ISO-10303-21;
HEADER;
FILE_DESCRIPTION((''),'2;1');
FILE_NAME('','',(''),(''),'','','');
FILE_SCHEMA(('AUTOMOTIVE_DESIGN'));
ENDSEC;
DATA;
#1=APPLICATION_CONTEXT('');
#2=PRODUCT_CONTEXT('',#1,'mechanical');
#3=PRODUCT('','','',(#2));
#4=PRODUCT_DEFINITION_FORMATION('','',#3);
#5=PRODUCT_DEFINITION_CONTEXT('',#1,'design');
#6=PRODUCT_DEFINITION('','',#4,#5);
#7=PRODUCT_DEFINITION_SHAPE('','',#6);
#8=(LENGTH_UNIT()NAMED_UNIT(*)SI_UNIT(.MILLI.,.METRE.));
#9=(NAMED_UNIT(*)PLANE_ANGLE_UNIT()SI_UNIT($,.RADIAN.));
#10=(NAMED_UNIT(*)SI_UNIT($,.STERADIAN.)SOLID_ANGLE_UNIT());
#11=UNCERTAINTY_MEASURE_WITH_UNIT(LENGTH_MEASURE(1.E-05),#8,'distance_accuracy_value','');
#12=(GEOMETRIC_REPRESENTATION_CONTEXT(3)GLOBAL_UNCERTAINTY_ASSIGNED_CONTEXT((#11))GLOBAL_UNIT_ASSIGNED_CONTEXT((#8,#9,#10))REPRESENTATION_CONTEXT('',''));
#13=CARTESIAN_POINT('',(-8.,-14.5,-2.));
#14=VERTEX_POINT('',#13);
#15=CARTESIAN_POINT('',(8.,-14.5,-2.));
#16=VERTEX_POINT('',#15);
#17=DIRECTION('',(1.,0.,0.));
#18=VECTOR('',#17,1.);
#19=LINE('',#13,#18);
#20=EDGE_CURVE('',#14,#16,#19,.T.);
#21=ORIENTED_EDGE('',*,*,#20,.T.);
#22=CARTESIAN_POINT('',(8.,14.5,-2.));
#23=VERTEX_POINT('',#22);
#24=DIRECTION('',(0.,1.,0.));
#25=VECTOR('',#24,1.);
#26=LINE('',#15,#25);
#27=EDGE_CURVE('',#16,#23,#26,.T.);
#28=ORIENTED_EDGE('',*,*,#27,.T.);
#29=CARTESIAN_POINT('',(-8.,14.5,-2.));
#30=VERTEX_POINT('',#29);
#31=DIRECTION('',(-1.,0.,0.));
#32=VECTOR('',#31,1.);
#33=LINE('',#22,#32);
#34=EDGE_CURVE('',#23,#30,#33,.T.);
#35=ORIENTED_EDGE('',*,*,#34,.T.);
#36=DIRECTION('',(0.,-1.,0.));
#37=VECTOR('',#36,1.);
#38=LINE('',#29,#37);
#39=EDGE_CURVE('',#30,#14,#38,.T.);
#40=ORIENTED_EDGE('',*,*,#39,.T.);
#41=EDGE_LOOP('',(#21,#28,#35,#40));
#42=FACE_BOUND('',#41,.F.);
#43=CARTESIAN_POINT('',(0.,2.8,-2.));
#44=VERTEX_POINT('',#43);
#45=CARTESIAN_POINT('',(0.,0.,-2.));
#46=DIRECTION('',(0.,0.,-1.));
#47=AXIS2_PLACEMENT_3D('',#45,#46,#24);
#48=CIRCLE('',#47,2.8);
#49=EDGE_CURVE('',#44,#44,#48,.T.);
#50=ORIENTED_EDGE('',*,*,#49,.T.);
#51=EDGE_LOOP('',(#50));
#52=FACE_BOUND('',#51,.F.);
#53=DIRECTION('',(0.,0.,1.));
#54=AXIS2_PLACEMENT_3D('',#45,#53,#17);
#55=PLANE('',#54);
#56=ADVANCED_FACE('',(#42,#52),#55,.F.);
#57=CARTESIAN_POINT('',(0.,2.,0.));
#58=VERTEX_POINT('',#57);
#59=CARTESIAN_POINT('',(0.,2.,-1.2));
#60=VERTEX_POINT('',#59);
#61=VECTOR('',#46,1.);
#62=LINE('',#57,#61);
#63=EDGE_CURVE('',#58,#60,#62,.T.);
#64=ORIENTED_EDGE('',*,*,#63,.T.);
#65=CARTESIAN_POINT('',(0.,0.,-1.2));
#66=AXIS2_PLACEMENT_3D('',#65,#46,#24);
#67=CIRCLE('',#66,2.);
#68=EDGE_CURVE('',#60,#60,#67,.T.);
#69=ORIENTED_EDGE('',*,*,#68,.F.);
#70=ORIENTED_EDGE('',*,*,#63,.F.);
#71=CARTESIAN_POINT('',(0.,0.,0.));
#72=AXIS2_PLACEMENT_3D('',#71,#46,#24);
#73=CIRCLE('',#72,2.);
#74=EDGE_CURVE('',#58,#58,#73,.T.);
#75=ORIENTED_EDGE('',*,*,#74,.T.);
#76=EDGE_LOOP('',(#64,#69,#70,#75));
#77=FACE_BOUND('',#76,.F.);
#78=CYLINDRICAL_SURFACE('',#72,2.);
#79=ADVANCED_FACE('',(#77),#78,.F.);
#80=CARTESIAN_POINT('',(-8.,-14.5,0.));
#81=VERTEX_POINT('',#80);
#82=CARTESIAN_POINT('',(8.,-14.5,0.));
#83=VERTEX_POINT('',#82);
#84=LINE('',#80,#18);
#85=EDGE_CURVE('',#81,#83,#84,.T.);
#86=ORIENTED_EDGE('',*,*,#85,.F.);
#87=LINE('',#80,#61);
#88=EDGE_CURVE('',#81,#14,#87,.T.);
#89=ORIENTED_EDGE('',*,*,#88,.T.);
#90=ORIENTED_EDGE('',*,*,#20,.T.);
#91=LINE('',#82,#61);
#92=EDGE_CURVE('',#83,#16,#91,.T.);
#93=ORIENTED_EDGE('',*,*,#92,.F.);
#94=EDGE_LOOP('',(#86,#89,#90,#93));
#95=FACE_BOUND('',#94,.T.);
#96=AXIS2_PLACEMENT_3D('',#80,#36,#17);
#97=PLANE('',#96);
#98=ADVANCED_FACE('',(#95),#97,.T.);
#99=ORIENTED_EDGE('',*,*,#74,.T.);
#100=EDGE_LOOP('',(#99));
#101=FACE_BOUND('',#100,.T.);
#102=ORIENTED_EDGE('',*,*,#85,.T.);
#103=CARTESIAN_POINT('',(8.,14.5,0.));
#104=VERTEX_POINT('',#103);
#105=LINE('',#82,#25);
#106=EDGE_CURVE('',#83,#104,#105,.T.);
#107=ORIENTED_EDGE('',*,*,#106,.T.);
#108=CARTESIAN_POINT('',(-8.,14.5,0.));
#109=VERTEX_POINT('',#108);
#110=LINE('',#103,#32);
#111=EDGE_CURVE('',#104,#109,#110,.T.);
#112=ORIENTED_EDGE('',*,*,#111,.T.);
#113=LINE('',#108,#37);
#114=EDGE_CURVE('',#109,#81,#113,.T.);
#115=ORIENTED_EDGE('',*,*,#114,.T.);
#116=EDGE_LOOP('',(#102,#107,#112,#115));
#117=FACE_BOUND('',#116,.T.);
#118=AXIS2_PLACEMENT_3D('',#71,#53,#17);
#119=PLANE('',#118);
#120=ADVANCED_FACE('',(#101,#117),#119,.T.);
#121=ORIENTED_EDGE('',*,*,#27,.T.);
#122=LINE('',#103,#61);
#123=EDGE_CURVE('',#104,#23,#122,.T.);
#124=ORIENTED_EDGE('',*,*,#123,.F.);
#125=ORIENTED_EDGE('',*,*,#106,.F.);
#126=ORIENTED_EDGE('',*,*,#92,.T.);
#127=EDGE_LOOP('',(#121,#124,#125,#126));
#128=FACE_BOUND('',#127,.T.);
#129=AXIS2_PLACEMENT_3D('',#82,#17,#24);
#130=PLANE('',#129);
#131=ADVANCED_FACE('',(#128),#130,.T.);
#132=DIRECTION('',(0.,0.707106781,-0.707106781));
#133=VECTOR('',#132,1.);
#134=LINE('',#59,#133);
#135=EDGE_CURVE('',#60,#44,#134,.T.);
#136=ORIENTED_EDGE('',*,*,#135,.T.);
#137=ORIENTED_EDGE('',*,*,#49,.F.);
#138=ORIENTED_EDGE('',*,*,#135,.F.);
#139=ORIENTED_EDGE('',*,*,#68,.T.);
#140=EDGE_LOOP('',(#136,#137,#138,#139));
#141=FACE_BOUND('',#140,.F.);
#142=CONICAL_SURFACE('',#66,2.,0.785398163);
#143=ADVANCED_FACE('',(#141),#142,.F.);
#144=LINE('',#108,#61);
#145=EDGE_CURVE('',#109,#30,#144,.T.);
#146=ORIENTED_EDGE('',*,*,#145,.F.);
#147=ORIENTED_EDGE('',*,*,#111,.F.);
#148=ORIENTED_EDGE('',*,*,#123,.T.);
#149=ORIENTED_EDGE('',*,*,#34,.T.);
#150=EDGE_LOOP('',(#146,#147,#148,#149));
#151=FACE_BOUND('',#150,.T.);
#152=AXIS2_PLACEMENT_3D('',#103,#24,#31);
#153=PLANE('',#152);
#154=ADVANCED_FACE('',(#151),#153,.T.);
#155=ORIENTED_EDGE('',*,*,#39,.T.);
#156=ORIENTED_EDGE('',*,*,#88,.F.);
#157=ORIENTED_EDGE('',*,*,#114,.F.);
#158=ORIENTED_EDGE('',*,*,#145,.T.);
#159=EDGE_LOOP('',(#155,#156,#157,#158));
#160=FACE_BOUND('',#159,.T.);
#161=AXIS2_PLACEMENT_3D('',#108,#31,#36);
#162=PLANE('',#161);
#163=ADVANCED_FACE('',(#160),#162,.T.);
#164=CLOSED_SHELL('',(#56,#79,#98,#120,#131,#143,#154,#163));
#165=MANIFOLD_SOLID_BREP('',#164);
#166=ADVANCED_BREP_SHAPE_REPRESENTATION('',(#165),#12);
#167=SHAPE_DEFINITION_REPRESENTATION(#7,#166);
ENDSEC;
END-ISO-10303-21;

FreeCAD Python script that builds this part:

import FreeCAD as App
import Part
import Sketcher

V = App.Vector
Q = App.Units.Quantity


def add_polygon(sketch, points):
    """Adds a closed chain of lines whose ends are joined by coincident constraints."""
    first, n = sketch.GeometryCount, len(points)
    for a, b in zip(points, points[1:] + points[:1]):
        sketch.addGeometry(Part.LineSegment(App.Vector(*a, 0), App.Vector(*b, 0)), False)
    for i in range(n):
        sketch.addConstraint(Sketcher.Constraint("Coincident", first + i, 2, first + (i + 1) % n, 1))

doc = App.newDocument("Part")
params = doc.addObject("Spreadsheet::Sheet", "Params")
for row, (alias, value) in enumerate([
    ("sketch1_width", "16 mm"),
    ("sketch1_height", "29 mm"),
    ("pad1_length", "2 mm"),
    ("sketch2_width", "2 mm"),
    ("sketch2_width2", "2.8 mm"),
    ("groove_angle", "360 deg"),
], start=1):
    params.set(f"A{row}", alias)
    params.set(f"B{row}", "=" + value)
    params.setAlias(f"B{row}", alias)

body = doc.addObject("PartDesign::Body", "Body")

# Sketch on XY plane
sketch1 = body.newObject("Sketcher::SketchObject", "Sketch")
sketch1.AttachmentSupport = (doc.getObject("XY_Plane"), [""])
sketch1.MapMode = "FlatFace"
add_polygon(sketch1, [(8, 14), (-8, 14), (-8, -14), (8, -14)])  # lines 0-3
sketch1.addConstraint([
    Sketcher.Constraint("Horizontal", 0),
    Sketcher.Constraint("Vertical", 1),
    Sketcher.Constraint("Horizontal", 2),
    Sketcher.Constraint("Vertical", 3),
    Sketcher.Constraint("Symmetric", 0, 2, 2, 2, -1, 1),
    Sketcher.Constraint("DistanceX", 0, 2, 0, 1, 16.0),
    Sketcher.Constraint("DistanceY", 1, 2, 1, 1, 29.0),
])
sketch1.setExpression("Constraints[9]", "Params.sketch1_width")
sketch1.setExpression("Constraints[10]", "Params.sketch1_height")
pad1 = body.newObject("PartDesign::Pad", "Pad")
pad1.Profile = sketch1
pad1.setExpression("Length", "Params.pad1_length")
pad1.Reversed = True

# Sketch on YZ plane
sketch2 = body.newObject("Sketcher::SketchObject", "Sketch001")
sketch2.AttachmentSupport = (doc.getObject("YZ_Plane"), [""])
sketch2.MapMode = "FlatFace"
add_polygon(sketch2, [(0, 0), (0, -2), (2.8, -2), (2, -1.2), (2, 0)])  # lines 0-4
sketch2.addConstraint([
    Sketcher.Constraint("Vertical", 0),
    Sketcher.Constraint("Horizontal", 1),
    Sketcher.Constraint("Vertical", 3),
    Sketcher.Constraint("Horizontal", 4),
    Sketcher.Constraint("Coincident", 4, 2, -1, 1),
    Sketcher.Constraint("Equal", 4, 0),
    Sketcher.Constraint("DistanceX", 4, 2, 4, 1, 2.0),
    Sketcher.Constraint("Angle", 2, Q("135 deg")),
    Sketcher.Constraint("DistanceX", 1, 1, 1, 2, 2.8),
])
sketch2.setExpression("Constraints[11]", "Params.sketch2_width")
sketch2.setExpression("Constraints[13]", "Params.sketch2_width2")
groove = body.newObject("PartDesign::Groove", "Groove")
groove.Profile = sketch2
groove.ReferenceAxis = (sketch2, ["V_Axis"])
groove.setExpression("Angle", "Params.groove_angle")

doc.recompute()
